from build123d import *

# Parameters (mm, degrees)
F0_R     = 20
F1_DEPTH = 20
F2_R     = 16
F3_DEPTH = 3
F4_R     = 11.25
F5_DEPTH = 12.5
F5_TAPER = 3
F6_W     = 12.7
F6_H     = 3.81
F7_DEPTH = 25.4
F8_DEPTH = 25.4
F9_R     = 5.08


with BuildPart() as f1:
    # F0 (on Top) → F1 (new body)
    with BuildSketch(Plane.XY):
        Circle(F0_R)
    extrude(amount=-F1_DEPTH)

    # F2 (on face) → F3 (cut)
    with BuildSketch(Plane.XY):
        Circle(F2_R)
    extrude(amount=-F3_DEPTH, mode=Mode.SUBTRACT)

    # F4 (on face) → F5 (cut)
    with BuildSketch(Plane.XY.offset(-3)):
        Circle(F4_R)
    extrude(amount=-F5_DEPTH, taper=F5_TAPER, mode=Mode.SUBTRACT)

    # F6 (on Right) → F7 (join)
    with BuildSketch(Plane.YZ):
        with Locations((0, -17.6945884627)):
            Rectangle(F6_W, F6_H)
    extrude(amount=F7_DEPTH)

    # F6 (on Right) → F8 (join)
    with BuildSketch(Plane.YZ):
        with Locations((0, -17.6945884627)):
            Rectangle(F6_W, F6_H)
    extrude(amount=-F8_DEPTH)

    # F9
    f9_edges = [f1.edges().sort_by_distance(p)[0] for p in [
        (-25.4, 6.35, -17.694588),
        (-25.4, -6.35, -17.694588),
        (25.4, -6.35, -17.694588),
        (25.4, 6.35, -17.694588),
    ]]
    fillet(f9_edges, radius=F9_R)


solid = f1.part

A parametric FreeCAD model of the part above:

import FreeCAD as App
import Part
import Sketcher
from FreeCAD import Vector
Q = App.Units.Quantity


def edges_at(feature, points):
    """Names of the edges that pass closest to the given points."""
    edges = feature.Shape.Edges
    near = lambda p: min(range(len(edges)), key=lambda i: edges[i].distToShape(Part.Vertex(*p))[0])
    return sorted({f"Edge{near(p) + 1}" for p in points})


def add_polygon(sketch, points):
    """Adds a closed chain of lines whose ends are joined by coincident constraints."""
    first, n = sketch.GeometryCount, len(points)
    for a, b in zip(points, points[1:] + points[:1]):
        sketch.addGeometry(Part.LineSegment(App.Vector(*a, 0), App.Vector(*b, 0)), False)
    for i in range(n):
        sketch.addConstraint(Sketcher.Constraint("Coincident", first + i, 2, first + (i + 1) % n, 1))

doc = App.newDocument("Part")
body = doc.addObject("PartDesign::Body", "Body")

sketch1 = body.newObject("Sketcher::SketchObject", "Sketch")
sketch1.AttachmentSupport = (doc.getObject("XY_Plane"), [""])
sketch1.MapMode = "FlatFace"
sketch1.addGeometry(Part.Circle(Vector(0, 0, 0), Vector(0, 0, 1), 20), False)
sketch1.addConstraint([
    Sketcher.Constraint("Coincident", 0, 3, -1, 1),
    Sketcher.Constraint("Diameter", 0, Q("40 mm")),
])
pad1 = body.newObject("PartDesign::Pad", "Pad")
pad1.Profile = sketch1
pad1.Length = 20
pad1.Reversed = True

sketch2 = body.newObject("Sketcher::SketchObject", "Sketch001")
sketch2.AttachmentSupport = (doc.getObject("XY_Plane"), [""])
sketch2.MapMode = "FlatFace"
sketch2.addGeometry(Part.Circle(Vector(0, 0, 0), Vector(0, 0, 1), 16), False)
sketch2.addConstraint([
    Sketcher.Constraint("Coincident", 0, 3, -1, 1),
    Sketcher.Constraint("Diameter", 0, Q("32 mm")),
])
pocket1 = body.newObject("PartDesign::Pocket", "Pocket")
pocket1.Profile = sketch2
pocket1.Length = 3

sketch3 = body.newObject("Sketcher::SketchObject", "Sketch002")
sketch3.AttachmentSupport = (doc.getObject("XY_Plane"), [""])
sketch3.MapMode = "FlatFace"
sketch3.AttachmentOffset = App.Placement(Vector(0, 0, -3), App.Rotation())
sketch3.addGeometry(Part.Circle(Vector(0, 0, 0), Vector(0, 0, 1), 11), False)
sketch3.addConstraint([
    Sketcher.Constraint("Coincident", 0, 3, -1, 1),
    Sketcher.Constraint("Diameter", 0, Q("22.5 mm")),
])
pocket2 = body.newObject("PartDesign::Pocket", "Pocket001")
pocket2.Profile = sketch3
pocket2.Length = 12.5
pocket2.TaperAngle = -3

sketch4 = body.newObject("Sketcher::SketchObject", "Sketch003")
sketch4.AttachmentSupport = (doc.getObject("YZ_Plane"), [""])
sketch4.MapMode = "FlatFace"
add_polygon(sketch4, [(-6.3, -15.8), (-6.3, -19.6), (6.3, -19.6), (6.3, -15.8)])
sketch4.addConstraint([
    Sketcher.Constraint("Vertical", 0),
    Sketcher.Constraint("Horizontal", 1),
    Sketcher.Constraint("Vertical", 2),
    Sketcher.Constraint("Horizontal", 3),
    Sketcher.Constraint("DistanceX", 1, 1, 1, 2, Q("12.7 mm")),
    Sketcher.Constraint("DistanceY", 0, 2, 0, 1, Q("3.81 mm")),
    Sketcher.Constraint("DistanceX", 0, 2, -1, 1, Q("6.35 mm")),
    Sketcher.Constraint("DistanceY", 0, 2, -1, 1, Q("19.599588 mm")),
])
pad2 = body.newObject("PartDesign::Pad", "Pad001")
pad2.Profile = sketch4
pad2.Length = 25.4

sketch5 = body.newObject("Sketcher::SketchObject", "Sketch004")
sketch5.AttachmentSupport = (doc.getObject("YZ_Plane"), [""])
sketch5.MapMode = "FlatFace"
add_polygon(sketch5, [(-6.3, -15.8), (-6.3, -19.6), (6.3, -19.6), (6.3, -15.8)])
sketch5.addConstraint([
    Sketcher.Constraint("Vertical", 0),
    Sketcher.Constraint("Horizontal", 1),
    Sketcher.Constraint("Vertical", 2),
    Sketcher.Constraint("Horizontal", 3),
    Sketcher.Constraint("DistanceX", 1, 1, 1, 2, Q("12.7 mm")),
    Sketcher.Constraint("DistanceY", 0, 2, 0, 1, Q("3.81 mm")),
    Sketcher.Constraint("DistanceX", 0, 2, -1, 1, Q("6.35 mm")),
    Sketcher.Constraint("DistanceY", 0, 2, -1, 1, Q("19.599588 mm")),
])
pad3 = body.newObject("PartDesign::Pad", "Pad002")
pad3.Profile = sketch5
pad3.Length = 25.4
pad3.Reversed = True
doc.recompute()

fillet = body.newObject("PartDesign::Fillet", "Fillet")
fillet.Base = (pad3, edges_at(pad3, [
    (-25.4, 6.35, -17.695),
    (-25.4, -6.35, -17.695),
    (25.4, -6.35, -17.695),
    (25.4, 6.35, -17.695),
]))
fillet.Radius = 5.08

doc.recompute()
